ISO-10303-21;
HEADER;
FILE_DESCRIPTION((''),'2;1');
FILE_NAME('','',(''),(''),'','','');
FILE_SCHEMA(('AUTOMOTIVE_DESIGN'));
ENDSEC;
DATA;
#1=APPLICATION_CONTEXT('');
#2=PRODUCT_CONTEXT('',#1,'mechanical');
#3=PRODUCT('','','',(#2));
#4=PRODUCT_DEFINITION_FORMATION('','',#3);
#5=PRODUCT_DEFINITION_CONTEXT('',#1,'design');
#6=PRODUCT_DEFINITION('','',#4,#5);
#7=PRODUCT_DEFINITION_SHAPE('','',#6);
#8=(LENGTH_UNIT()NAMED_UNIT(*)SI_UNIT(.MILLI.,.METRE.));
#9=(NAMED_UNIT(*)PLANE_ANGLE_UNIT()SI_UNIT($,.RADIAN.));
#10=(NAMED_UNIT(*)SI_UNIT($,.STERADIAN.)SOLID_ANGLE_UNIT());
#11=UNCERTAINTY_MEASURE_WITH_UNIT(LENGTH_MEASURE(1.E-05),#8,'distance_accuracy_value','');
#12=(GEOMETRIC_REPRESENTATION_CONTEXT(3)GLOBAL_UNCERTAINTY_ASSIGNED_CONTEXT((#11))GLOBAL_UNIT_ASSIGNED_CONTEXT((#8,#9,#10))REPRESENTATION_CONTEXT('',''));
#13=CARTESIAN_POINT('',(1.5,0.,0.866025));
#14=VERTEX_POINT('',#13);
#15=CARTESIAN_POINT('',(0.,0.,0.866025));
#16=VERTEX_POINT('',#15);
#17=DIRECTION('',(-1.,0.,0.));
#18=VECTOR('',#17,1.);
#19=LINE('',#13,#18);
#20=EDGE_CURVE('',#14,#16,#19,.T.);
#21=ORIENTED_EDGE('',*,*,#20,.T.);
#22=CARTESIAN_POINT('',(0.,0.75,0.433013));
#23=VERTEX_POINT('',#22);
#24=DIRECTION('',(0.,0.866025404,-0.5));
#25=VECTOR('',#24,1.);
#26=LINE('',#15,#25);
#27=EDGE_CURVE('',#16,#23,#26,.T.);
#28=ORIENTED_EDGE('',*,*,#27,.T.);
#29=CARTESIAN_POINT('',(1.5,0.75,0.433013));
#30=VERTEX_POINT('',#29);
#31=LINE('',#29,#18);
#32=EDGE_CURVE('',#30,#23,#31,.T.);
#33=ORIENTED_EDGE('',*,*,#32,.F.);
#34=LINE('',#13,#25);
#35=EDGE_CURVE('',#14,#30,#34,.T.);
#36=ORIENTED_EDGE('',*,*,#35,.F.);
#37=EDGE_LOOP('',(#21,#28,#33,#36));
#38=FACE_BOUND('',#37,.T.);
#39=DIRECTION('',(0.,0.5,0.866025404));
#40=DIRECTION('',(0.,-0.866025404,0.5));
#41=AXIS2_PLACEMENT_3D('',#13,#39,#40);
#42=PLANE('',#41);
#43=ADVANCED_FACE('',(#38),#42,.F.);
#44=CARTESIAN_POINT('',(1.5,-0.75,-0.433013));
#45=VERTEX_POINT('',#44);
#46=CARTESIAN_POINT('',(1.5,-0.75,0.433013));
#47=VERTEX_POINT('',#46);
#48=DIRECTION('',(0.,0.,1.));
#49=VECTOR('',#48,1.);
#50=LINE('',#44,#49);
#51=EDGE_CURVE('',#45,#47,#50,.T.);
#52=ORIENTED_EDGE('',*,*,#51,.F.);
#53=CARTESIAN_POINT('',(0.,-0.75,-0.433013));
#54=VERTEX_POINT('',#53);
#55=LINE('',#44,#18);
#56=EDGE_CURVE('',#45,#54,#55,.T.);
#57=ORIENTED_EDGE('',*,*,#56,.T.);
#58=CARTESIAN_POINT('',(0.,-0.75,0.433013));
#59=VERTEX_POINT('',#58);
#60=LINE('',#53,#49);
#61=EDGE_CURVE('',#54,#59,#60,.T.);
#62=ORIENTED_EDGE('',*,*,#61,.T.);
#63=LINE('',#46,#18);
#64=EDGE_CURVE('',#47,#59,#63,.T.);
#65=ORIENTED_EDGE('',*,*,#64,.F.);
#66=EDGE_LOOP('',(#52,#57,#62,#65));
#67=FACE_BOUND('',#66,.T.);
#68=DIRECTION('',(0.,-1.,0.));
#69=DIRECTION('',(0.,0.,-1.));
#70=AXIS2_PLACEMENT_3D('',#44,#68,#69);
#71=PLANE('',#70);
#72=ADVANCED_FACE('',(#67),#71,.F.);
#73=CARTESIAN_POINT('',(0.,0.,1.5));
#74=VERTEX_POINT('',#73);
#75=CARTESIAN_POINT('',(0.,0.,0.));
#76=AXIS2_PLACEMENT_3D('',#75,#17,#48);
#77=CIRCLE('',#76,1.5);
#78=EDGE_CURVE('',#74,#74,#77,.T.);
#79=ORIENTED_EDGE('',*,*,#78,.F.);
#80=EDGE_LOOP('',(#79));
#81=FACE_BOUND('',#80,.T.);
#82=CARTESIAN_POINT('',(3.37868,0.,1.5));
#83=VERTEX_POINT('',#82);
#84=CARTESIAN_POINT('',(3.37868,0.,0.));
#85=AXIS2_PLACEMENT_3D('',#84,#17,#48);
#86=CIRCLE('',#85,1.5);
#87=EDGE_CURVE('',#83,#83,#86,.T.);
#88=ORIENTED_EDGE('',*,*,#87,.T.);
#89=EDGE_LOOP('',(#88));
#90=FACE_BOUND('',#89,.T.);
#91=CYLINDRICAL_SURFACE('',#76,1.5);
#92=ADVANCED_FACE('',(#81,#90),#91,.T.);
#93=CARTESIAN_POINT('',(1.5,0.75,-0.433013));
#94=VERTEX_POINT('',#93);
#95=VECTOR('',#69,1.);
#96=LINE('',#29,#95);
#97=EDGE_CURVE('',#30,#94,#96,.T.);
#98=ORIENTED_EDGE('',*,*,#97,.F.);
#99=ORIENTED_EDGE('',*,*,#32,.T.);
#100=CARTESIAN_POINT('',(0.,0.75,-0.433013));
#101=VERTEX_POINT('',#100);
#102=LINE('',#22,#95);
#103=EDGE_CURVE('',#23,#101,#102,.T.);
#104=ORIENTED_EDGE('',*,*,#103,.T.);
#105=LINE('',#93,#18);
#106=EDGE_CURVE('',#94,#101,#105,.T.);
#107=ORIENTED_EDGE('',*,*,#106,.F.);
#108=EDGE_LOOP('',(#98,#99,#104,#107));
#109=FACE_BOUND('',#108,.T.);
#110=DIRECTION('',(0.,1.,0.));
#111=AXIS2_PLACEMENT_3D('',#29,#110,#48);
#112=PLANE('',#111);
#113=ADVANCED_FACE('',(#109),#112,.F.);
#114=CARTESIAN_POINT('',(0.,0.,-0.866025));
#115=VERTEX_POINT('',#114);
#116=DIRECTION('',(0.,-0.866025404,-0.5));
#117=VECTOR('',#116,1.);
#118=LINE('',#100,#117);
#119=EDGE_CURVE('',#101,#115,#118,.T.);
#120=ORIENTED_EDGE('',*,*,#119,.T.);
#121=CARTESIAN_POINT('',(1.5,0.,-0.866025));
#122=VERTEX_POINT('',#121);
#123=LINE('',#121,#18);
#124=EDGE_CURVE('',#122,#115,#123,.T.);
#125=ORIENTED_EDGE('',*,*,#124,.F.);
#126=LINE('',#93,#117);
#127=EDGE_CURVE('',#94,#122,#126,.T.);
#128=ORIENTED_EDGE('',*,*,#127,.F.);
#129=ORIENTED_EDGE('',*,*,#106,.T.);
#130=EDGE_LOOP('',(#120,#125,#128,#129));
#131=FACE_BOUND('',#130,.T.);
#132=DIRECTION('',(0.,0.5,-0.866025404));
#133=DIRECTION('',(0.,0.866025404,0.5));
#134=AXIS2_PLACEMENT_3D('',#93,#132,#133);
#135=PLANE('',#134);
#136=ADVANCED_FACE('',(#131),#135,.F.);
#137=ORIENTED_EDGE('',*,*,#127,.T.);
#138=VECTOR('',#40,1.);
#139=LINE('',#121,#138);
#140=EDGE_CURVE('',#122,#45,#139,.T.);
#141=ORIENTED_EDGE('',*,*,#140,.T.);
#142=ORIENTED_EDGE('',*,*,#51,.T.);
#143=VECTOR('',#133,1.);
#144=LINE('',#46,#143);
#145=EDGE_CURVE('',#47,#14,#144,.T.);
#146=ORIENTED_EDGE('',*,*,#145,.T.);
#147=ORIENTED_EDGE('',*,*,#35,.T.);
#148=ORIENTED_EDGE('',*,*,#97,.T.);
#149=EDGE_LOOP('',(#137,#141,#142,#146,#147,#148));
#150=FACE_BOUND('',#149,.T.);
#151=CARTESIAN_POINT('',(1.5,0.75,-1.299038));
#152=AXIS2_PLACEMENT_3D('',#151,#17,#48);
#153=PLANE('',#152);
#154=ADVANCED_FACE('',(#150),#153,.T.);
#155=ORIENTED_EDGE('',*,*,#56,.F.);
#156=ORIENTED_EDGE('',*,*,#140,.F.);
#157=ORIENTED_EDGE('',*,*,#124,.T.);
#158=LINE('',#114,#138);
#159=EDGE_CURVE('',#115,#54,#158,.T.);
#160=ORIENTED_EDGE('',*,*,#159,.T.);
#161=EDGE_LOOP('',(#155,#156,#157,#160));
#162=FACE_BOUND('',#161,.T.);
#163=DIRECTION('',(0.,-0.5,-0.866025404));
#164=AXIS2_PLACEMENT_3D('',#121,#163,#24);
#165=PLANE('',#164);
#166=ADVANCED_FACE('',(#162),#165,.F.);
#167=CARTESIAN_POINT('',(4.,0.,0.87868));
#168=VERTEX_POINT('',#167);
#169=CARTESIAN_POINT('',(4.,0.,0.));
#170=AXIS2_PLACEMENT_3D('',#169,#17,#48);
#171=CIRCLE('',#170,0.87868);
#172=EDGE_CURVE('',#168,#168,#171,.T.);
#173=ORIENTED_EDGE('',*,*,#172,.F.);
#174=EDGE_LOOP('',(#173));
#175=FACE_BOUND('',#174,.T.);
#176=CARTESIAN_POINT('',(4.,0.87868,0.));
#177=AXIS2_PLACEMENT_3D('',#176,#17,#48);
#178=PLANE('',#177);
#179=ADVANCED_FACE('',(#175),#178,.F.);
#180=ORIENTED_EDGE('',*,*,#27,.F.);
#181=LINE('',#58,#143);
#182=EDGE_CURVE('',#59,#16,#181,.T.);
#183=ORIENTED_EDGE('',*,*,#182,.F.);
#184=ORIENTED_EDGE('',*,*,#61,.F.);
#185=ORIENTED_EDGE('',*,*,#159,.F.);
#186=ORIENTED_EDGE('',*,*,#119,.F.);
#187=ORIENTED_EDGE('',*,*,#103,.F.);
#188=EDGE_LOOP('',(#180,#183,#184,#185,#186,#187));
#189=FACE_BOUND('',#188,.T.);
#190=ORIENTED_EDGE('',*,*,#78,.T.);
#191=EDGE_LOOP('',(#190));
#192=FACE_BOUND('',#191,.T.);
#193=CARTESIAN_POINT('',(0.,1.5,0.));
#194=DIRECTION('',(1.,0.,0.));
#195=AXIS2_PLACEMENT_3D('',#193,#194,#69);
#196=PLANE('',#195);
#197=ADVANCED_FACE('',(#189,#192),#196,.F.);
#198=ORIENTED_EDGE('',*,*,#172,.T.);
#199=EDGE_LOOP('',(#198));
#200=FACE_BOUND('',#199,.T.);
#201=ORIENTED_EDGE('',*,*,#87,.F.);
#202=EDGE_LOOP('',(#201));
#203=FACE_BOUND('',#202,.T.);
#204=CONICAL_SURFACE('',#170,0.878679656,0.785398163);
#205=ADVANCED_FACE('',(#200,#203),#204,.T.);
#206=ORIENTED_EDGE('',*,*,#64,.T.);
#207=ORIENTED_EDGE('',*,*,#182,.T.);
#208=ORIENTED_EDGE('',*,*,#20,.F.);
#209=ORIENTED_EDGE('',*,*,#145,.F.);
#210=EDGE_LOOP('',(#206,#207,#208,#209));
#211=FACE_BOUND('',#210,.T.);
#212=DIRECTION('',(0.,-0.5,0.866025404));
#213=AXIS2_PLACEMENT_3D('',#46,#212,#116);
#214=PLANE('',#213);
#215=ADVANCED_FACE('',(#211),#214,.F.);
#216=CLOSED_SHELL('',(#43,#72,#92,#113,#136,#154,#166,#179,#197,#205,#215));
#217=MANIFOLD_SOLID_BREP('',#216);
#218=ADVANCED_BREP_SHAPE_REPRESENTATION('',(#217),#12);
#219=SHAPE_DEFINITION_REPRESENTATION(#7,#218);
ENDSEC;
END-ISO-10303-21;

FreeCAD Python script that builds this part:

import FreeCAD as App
import Part
import Sketcher
Q = App.Units.Quantity


def add_polygon(sketch, points):
    """Adds a closed chain of lines whose ends are joined by coincident constraints."""
    first, n = sketch.GeometryCount, len(points)
    for a, b in zip(points, points[1:] + points[:1]):
        sketch.addGeometry(Part.LineSegment(App.Vector(*a, 0), App.Vector(*b, 0)), False)
    for i in range(n):
        sketch.addConstraint(Sketcher.Constraint("Coincident", first + i, 2, first + (i + 1) % n, 1))

doc = App.newDocument("Part")
body = doc.addObject("PartDesign::Body", "Body")

# Sketch on XY plane
sketch1 = body.newObject("Sketcher::SketchObject", "Sketch")
sketch1.AttachmentSupport = (doc.getObject("XY_Plane"), [""])
sketch1.MapMode = "FlatFace"
add_polygon(sketch1, [(4, 0), (4, 0.9), (3.4, 1.5), (0, 1.5), (0, 0)])  # lines 0-4
sketch1.addConstraint([
    Sketcher.Constraint("Vertical", 0),
    Sketcher.Constraint("Horizontal", 2),
    Sketcher.Constraint("Vertical", 3),
    Sketcher.Constraint("Horizontal", 4),
    Sketcher.Constraint("Coincident", 3, 2, -1, 1),
    Sketcher.Constraint("DistanceX", 4, 1, 4, 2, 4.0),
    Sketcher.Constraint("Angle", 1, Q("135 deg")),
    Sketcher.Constraint("DistanceY", 3, 2, 3, 1, 1.5),
    Sketcher.Constraint("DistanceX", 2, 2, 2, 1, 3.37868),
])
revolution = body.newObject("PartDesign::Revolution", "Revolution")
revolution.Profile = sketch1
revolution.ReferenceAxis = (sketch1, ["H_Axis"])
revolution.Angle = 360

# Sketch on YZ plane
sketch2 = body.newObject("Sketcher::SketchObject", "Sketch001")
sketch2.AttachmentSupport = (doc.getObject("YZ_Plane"), [""])
sketch2.MapMode = "FlatFace"
add_polygon(sketch2, [(0.8, -0.4), (0, -0.9), (-0.8, -0.4), (-0.8, 0.4), (0, 0.9), (0.8, 0.4)])  # lines 0-5
sketch2.addConstraint([
    Sketcher.Constraint("Vertical", 2),
    Sketcher.Constraint("Vertical", 5),
    Sketcher.Constraint("Symmetric", 0, 2, 3, 2, -1, 1),
    Sketcher.Constraint("Symmetric", 1, 2, 4, 2, -1, 1),
    Sketcher.Constraint("PointOnObject", 0, 2, -2),
    Sketcher.Constraint("Parallel", 0, 3),
    Sketcher.Constraint("Horizontal", 2, 2, 4, 2),
    Sketcher.Constraint("Angle", 0, Q("-150 deg")),
    Sketcher.Constraint("DistanceX", 2, 2, 4, 2, 1.5),
    Sketcher.Constraint("DistanceY", 2, 1, 2, 2, 0.866025),
])
pocket1 = body.newObject("PartDesign::Pocket", "Pocket")
pocket1.Profile = sketch2
pocket1.Length = 1.5
pocket1.Reversed = True

doc.recompute()
